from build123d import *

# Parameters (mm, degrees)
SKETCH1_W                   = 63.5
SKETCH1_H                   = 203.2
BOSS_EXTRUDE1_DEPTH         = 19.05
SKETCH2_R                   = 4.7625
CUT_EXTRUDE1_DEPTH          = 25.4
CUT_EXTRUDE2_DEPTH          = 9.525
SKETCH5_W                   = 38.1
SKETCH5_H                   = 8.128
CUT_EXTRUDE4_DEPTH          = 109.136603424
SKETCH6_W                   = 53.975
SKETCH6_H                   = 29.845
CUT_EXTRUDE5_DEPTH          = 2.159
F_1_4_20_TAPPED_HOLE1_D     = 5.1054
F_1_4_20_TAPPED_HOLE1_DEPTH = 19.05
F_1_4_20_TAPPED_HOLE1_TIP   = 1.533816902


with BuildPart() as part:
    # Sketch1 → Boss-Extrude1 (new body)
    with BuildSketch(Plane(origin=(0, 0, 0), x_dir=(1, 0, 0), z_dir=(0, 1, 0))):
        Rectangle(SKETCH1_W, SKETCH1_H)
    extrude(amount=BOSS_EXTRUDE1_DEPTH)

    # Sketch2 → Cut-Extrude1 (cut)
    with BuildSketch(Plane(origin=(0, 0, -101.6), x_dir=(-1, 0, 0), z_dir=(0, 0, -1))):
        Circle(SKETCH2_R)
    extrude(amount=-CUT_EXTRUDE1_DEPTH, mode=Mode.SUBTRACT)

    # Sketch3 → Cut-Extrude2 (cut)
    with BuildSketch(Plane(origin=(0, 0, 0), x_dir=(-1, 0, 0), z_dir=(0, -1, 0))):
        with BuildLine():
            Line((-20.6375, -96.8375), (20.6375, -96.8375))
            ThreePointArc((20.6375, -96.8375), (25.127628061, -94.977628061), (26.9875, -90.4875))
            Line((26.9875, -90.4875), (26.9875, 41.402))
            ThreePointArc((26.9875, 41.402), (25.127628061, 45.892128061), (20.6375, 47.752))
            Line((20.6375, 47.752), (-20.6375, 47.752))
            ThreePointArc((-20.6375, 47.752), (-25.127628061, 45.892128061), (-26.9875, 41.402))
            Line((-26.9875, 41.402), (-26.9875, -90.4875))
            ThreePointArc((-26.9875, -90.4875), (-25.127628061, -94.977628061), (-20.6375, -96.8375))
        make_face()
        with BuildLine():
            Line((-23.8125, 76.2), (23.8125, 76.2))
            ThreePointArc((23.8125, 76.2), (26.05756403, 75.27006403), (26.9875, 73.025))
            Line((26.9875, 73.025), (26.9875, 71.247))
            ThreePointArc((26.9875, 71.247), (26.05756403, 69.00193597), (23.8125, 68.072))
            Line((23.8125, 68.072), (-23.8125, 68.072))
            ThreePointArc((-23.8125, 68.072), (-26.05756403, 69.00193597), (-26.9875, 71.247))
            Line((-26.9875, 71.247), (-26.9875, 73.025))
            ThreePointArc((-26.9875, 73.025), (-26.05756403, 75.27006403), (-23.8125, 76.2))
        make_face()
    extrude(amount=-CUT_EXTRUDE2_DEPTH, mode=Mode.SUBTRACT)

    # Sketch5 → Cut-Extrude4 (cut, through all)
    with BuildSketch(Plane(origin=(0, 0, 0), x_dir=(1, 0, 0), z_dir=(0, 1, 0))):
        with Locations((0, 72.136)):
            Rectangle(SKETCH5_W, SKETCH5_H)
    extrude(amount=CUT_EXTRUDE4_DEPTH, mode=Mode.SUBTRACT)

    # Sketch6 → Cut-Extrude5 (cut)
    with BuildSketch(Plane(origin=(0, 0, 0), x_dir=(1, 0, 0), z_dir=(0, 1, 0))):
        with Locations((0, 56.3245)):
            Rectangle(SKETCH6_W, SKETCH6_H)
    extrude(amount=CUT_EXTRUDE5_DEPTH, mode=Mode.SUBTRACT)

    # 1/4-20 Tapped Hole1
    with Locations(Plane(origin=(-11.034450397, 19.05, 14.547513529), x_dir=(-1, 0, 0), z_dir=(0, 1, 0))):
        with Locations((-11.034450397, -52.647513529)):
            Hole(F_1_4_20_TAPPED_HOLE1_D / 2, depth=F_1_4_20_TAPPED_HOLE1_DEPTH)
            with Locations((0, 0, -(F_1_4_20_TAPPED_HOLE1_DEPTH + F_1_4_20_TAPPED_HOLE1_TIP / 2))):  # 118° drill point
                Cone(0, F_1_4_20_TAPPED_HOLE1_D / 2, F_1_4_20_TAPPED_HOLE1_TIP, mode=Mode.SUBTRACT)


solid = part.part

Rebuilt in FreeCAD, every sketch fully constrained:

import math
import FreeCAD as App
import Part
import Sketcher

V = App.Vector
Q = App.Units.Quantity


def add_polygon(sketch, points):
    """Adds a closed chain of lines whose ends are joined by coincident constraints."""
    first, n = sketch.GeometryCount, len(points)
    for a, b in zip(points, points[1:] + points[:1]):
        sketch.addGeometry(Part.LineSegment(App.Vector(*a, 0), App.Vector(*b, 0)), False)
    for i in range(n):
        sketch.addConstraint(Sketcher.Constraint("Coincident", first + i, 2, first + (i + 1) % n, 1))

doc = App.newDocument("Part")
body = doc.addObject("PartDesign::Body", "Body")

sketch1 = body.newObject("Sketcher::SketchObject", "Sketch")
sketch1.AttachmentSupport = (doc.getObject("XZ_Plane"), [""])
sketch1.MapMode = "FlatFace"
add_polygon(sketch1, [(-31.75, -101.6), (-31.75, 101.6), (31.75, 101.6), (31.75, -101.6)])
sketch1.addConstraint([
    Sketcher.Constraint("Vertical", 0),
    Sketcher.Constraint("Horizontal", 1),
    Sketcher.Constraint("Vertical", 2),
    Sketcher.Constraint("Horizontal", 3),
    Sketcher.Constraint("Symmetric", 0, 2, 2, 2, -1, 1),
    Sketcher.Constraint("DistanceY", 0, 1, 0, 2, Q("8 in")),
    Sketcher.Constraint("DistanceX", 1, 1, 1, 2, Q("2.5 in")),
])
pad1 = body.newObject("PartDesign::Pad", "Pad")
pad1.Profile = sketch1
pad1.Length = Q("0.75 in")
pad1.Reversed = True

sketch2 = body.newObject("Sketcher::SketchObject", "Sketch001")
sketch2.AttachmentSupport = (doc.getObject("XY_Plane"), [""])
sketch2.MapMode = "FlatFace"
sketch2.AttachmentOffset = App.Placement(V(0, 0, -4 * 25.4), App.Rotation())
sketch2.addGeometry(Part.Circle(V(0, 0, 0), V(0, 0, 1), 4.7625), False)
sketch2.addConstraint([
    Sketcher.Constraint("Coincident", 0, 3, -1, 1),
    Sketcher.Constraint("Diameter", 0, Q("0.375 in")),
])
pocket1 = body.newObject("PartDesign::Pocket", "Pocket")
pocket1.Profile = sketch2
pocket1.Length = Q("1 in")
pocket1.Reversed = True

sketch3 = body.newObject("Sketcher::SketchObject", "Sketch002")
sketch3.AttachmentSupport = (doc.getObject("XZ_Plane"), [""])
sketch3.MapMode = "FlatFace"
sketch3.addGeometry([
    Part.LineSegment(V(20.6375, 96.8375, 0), V(-20.6375, 96.8375, 0)),
    Part.ArcOfCircle(Part.Circle(V(-20.6375, 90.4875, 0), V(0, 0, 1), 6.35), math.radians(90), math.radians(180)),
    Part.LineSegment(V(-26.9875, 90.4875, 0), V(-26.9875, -41.402, 0)),
    Part.ArcOfCircle(Part.Circle(V(-20.6375, -41.402, 0), V(0, 0, 1), 6.35), math.radians(180), math.radians(270)),
    Part.LineSegment(V(-20.6375, -47.752, 0), V(20.6375, -47.752, 0)),
    Part.ArcOfCircle(Part.Circle(V(20.6375, -41.402, 0), V(0, 0, 1), 6.35), math.radians(-90), math.radians(0)),
    Part.LineSegment(V(26.9875, -41.402, 0), V(26.9875, 90.4875, 0)),
    Part.ArcOfCircle(Part.Circle(V(20.6375, 90.4875, 0), V(0, 0, 1), 6.35), math.radians(0), math.radians(90)),
    Part.LineSegment(V(-23.8125, -76.2, 0), V(23.8125, -76.2, 0)),
    Part.ArcOfCircle(Part.Circle(V(23.8125, -73.025, 0), V(0, 0, 1), 3.175), math.radians(-90), math.radians(0)),
    Part.LineSegment(V(26.9875, -73.025, 0), V(26.9875, -71.247, 0)),
    Part.ArcOfCircle(Part.Circle(V(23.8125, -71.247, 0), V(0, 0, 1), 3.175), math.radians(0), math.radians(90)),
    Part.LineSegment(V(23.8125, -68.072, 0), V(-23.8125, -68.072, 0)),
    Part.ArcOfCircle(Part.Circle(V(-23.8125, -71.247, 0), V(0, 0, 1), 3.175), math.radians(90), math.radians(180)),
    Part.LineSegment(V(-26.9875, -71.247, 0), V(-26.9875, -73.025, 0)),
    Part.ArcOfCircle(Part.Circle(V(-23.8125, -73.025, 0), V(0, 0, 1), 3.175), math.radians(-180), math.radians(-90)),
], False)
sketch3.addConstraint([
    Sketcher.Constraint("Tangent", 0, 2, 1, 1),
    Sketcher.Constraint("Tangent", 1, 2, 2, 1),
    Sketcher.Constraint("Tangent", 2, 2, 3, 1),
    Sketcher.Constraint("Tangent", 3, 2, 4, 1),
    Sketcher.Constraint("Tangent", 4, 2, 5, 1),
    Sketcher.Constraint("Tangent", 5, 2, 6, 1),
    Sketcher.Constraint("Tangent", 6, 2, 7, 1),
    Sketcher.Constraint("Tangent", 7, 2, 0, 1),
    Sketcher.Constraint("Tangent", 8, 2, 9, 1),
    Sketcher.Constraint("Tangent", 9, 2, 10, 1),
    Sketcher.Constraint("Tangent", 10, 2, 11, 1),
    Sketcher.Constraint("Tangent", 11, 2, 12, 1),
    Sketcher.Constraint("Tangent", 12, 2, 13, 1),
    Sketcher.Constraint("Tangent", 13, 2, 14, 1),
    Sketcher.Constraint("Tangent", 14, 2, 15, 1),
    Sketcher.Constraint("Tangent", 15, 2, 8, 1),
    Sketcher.Constraint("Horizontal", 0),
    Sketcher.Constraint("Vertical", 2),
    Sketcher.Constraint("Horizontal", 4),
    Sketcher.Constraint("Vertical", 6),
    Sketcher.Constraint("Horizontal", 8),
    Sketcher.Constraint("Vertical", 10),
    Sketcher.Constraint("Horizontal", 12),
    Sketcher.Constraint("Vertical", 14),
    Sketcher.Constraint("Equal", 1, 3),
    Sketcher.Constraint("Equal", 3, 5),
    Sketcher.Constraint("Equal", 5, 7),
    Sketcher.Constraint("Equal", 9, 11),
    Sketcher.Constraint("Equal", 11, 13),
    Sketcher.Constraint("Equal", 13, 15),
    Sketcher.Constraint("Vertical", 6, 2, 9, 2),
    Sketcher.Constraint("Vertical", 2, 2, 13, 2),
    Sketcher.Constraint("Radius", 1, Q("0.25 in")),
    Sketcher.Constraint("DistanceY", 8, 2, -1, 1, Q("3 in")),
    Sketcher.Constraint("Radius", 9, Q("0.125 in")),
    Sketcher.Constraint("DistanceX", 2, 2, 11, 3, Q("2 in")),
    Sketcher.Constraint("DistanceY", 10, 1, 10, 2, Q("0.07 in")),
    Sketcher.Constraint("DistanceY", 12, 2, 3, 2, Q("0.8 in")),
    Sketcher.Constraint("DistanceY", 2, 2, 2, 1, Q("5.1925 in")),
    Sketcher.Constraint("DistanceX", 1, 3, -1, 1, Q("0.8125 in")),
])
pocket2 = body.newObject("PartDesign::Pocket", "Pocket001")
pocket2.Profile = sketch3
pocket2.Length = Q("0.375 in")

sketch4 = body.newObject("Sketcher::SketchObject", "Sketch003")
sketch4.AttachmentSupport = (doc.getObject("XZ_Plane"), [""])
sketch4.MapMode = "FlatFace"
add_polygon(sketch4, [(-19.05, -76.2), (-19.05, -68.072), (19.05, -68.072), (19.05, -76.2)])
sketch4.addConstraint([
    Sketcher.Constraint("Vertical", 0),
    Sketcher.Constraint("Horizontal", 1),
    Sketcher.Constraint("Vertical", 2),
    Sketcher.Constraint("Horizontal", 3),
    Sketcher.Constraint("DistanceX", 1, 1, 1, 2, Q("1.5 in")),
    Sketcher.Constraint("DistanceY", 2, 2, -1, 1, Q("3 in")),
    Sketcher.Constraint("DistanceY", 0, 1, 0, 2, Q("0.32 in")),
    Sketcher.Constraint("DistanceX", 0, 2, -1, 1, Q("0.75 in")),
])
pocket3 = body.newObject("PartDesign::Pocket", "Pocket002")
pocket3.Profile = sketch4
pocket3.Type = "ThroughAll"

sketch5 = body.newObject("Sketcher::SketchObject", "Sketch004")
sketch5.AttachmentSupport = (doc.getObject("XZ_Plane"), [""])
sketch5.MapMode = "FlatFace"
add_polygon(sketch5, [(-26.9875, -71.247), (-26.9875, -41.402), (26.9875, -41.402), (26.9875, -71.247)])
sketch5.addConstraint([
    Sketcher.Constraint("Vertical", 0),
    Sketcher.Constraint("Horizontal", 1),
    Sketcher.Constraint("Vertical", 2),
    Sketcher.Constraint("Horizontal", 3),
    Sketcher.Constraint("DistanceX", 1, 1, 1, 2, Q("2.125 in")),
    Sketcher.Constraint("DistanceY", 0, 1, 0, 2, Q("1.175 in")),
    Sketcher.Constraint("DistanceY", 0, 2, -1, 1, Q("1.63 in")),
    Sketcher.Constraint("DistanceX", 0, 2, -1, 1, Q("1.0625 in")),
])
pocket4 = body.newObject("PartDesign::Pocket", "Pocket003")
pocket4.Profile = sketch5
pocket4.Length = Q("0.085 in")

sketch6 = body.newObject("Sketcher::SketchObject", "Sketch005")
sketch6.AttachmentSupport = (doc.getObject("XZ_Plane"), [""])
sketch6.MapMode = "FlatFace"
sketch6.AttachmentOffset = App.Placement(V(0, 0, -0.75 * 25.4), App.Rotation())
sketch6.addGeometry(Part.Circle(V(0, -38.1, 0), V(0, 0, 1), 2.5527), False)
sketch6.addConstraint([
    Sketcher.Constraint("PointOnObject", 0, 3, -2),
    Sketcher.Constraint("Diameter", 0, Q("0.201 in")),
    Sketcher.Constraint("DistanceY", 0, 3, -1, 1, Q("1.5 in")),
])
doc.recompute()
hole = body.newObject("PartDesign::Hole", "Hole")
hole.Profile = sketch6
hole.ThreadType = "None"
hole.Diameter = Q("0.201 in")
hole.DepthType = "Dimension"
hole.Depth = Q("0.75 in")
hole.DrillPoint = "Angled"
hole.DrillPointAngle = 118
hole.Reversed = True

doc.recompute()
